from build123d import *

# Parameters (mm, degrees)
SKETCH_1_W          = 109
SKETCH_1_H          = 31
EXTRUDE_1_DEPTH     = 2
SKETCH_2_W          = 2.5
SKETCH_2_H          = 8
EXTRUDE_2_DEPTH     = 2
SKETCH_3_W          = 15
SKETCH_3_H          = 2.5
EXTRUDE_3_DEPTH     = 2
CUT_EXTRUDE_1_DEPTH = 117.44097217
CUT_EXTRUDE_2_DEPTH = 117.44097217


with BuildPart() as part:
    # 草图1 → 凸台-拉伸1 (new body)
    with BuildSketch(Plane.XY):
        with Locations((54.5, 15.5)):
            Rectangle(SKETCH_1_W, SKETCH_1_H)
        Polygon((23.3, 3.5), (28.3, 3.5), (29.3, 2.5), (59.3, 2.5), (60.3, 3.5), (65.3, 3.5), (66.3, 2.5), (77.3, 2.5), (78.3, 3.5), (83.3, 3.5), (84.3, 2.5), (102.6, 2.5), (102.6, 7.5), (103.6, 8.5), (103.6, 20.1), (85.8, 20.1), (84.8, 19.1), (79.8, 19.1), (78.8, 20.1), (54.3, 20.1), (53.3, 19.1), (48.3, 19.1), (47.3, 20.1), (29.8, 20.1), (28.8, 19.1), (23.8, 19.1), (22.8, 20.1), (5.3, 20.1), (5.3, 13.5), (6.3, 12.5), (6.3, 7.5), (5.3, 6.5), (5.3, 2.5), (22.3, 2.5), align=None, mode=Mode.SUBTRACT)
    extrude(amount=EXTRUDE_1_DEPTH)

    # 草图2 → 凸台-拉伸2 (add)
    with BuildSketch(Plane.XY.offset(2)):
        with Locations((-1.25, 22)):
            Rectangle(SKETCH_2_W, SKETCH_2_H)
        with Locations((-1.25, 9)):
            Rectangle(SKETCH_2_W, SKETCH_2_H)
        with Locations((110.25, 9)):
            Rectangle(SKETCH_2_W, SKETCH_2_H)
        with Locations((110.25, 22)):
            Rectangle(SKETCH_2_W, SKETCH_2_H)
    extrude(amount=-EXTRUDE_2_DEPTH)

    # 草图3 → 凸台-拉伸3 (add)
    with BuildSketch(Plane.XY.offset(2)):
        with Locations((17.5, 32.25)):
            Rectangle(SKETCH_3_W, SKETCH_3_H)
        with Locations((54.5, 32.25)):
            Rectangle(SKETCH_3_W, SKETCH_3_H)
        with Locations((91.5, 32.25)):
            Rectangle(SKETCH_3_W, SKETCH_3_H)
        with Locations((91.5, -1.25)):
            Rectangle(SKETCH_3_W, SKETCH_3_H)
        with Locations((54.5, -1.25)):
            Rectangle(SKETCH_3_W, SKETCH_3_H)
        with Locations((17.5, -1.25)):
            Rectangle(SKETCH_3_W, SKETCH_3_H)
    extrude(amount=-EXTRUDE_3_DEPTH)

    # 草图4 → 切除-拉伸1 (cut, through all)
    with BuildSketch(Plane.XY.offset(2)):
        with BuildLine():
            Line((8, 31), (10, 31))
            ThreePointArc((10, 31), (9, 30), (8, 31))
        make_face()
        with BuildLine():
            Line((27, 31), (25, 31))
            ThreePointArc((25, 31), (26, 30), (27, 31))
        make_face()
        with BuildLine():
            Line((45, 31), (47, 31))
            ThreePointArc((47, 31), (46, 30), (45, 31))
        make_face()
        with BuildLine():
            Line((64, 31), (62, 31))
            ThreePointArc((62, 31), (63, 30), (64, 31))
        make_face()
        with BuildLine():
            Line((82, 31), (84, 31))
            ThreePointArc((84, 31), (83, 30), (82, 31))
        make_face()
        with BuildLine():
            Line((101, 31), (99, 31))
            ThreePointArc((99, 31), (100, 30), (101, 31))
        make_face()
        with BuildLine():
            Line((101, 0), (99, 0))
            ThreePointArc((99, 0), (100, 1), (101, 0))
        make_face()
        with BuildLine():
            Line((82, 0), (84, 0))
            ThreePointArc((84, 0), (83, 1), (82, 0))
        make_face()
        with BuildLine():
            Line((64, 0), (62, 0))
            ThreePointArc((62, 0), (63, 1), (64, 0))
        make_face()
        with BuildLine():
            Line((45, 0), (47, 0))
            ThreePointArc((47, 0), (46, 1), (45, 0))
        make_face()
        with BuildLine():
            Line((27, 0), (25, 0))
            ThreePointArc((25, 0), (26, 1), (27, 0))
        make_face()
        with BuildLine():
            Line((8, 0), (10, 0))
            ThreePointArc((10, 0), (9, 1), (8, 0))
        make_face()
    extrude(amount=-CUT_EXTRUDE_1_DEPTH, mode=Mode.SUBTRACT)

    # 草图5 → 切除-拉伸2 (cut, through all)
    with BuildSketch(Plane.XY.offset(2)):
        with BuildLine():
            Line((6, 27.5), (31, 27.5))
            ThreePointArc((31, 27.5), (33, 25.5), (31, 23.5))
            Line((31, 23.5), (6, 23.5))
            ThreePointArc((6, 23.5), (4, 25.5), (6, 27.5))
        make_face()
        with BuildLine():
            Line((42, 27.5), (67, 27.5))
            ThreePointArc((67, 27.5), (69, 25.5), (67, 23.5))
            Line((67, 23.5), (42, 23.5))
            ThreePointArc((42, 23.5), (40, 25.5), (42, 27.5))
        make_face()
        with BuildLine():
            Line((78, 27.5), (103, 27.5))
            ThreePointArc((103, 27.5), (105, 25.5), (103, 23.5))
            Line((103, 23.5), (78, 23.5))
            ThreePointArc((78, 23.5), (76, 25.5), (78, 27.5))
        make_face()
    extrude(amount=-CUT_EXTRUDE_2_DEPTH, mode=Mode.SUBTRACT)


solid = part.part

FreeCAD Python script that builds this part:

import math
import FreeCAD as App
import Part
import Sketcher

V = App.Vector
Q = App.Units.Quantity

doc = App.newDocument("Part")
body = doc.addObject("PartDesign::Body", "Body")

# Sketch on XY plane
sketch1 = body.newObject("Sketcher::SketchObject", "Sketch")
sketch1.AttachmentSupport = (doc.getObject("XY_Plane"), [""])
sketch1.MapMode = "FlatFace"
sketch1.addGeometry(Part.LineSegment(V(0, 31, 0), V(0, 0, 0)), False)
sketch1.addGeometry(Part.LineSegment(V(0, 0, 0), V(109, 0, 0)), False)
sketch1.addGeometry(Part.LineSegment(V(109, 0, 0), V(109, 31, 0)), False)
sketch1.addGeometry(Part.LineSegment(V(109, 31, 0), V(0, 31, 0)), False)
sketch1.addGeometry(Part.LineSegment(V(28.3, 3.5, 0), V(23.3, 3.5, 0)), False)
sketch1.addGeometry(Part.LineSegment(V(23.3, 3.5, 0), V(22.3, 2.5, 0)), False)
sketch1.addGeometry(Part.LineSegment(V(22.3, 2.5, 0), V(5.3, 2.5, 0)), False)
sketch1.addGeometry(Part.LineSegment(V(5.3, 2.5, 0), V(5.3, 6.5, 0)), False)
sketch1.addGeometry(Part.LineSegment(V(5.3, 6.5, 0), V(6.3, 7.5, 0)), False)
sketch1.addGeometry(Part.LineSegment(V(6.3, 7.5, 0), V(6.3, 12.5, 0)), False)
sketch1.addGeometry(Part.LineSegment(V(6.3, 12.5, 0), V(5.3, 13.5, 0)), False)
sketch1.addGeometry(Part.LineSegment(V(5.3, 13.5, 0), V(5.3, 20.1, 0)), False)
sketch1.addGeometry(Part.LineSegment(V(5.3, 20.1, 0), V(22.8, 20.1, 0)), False)
sketch1.addGeometry(Part.LineSegment(V(22.8, 20.1, 0), V(23.8, 19.1, 0)), False)
sketch1.addGeometry(Part.LineSegment(V(23.8, 19.1, 0), V(28.8, 19.1, 0)), False)
sketch1.addGeometry(Part.LineSegment(V(28.8, 19.1, 0), V(29.8, 20.1, 0)), False)
sketch1.addGeometry(Part.LineSegment(V(29.8, 20.1, 0), V(47.3, 20.1, 0)), False)
sketch1.addGeometry(Part.LineSegment(V(47.3, 20.1, 0), V(48.3, 19.1, 0)), False)
sketch1.addGeometry(Part.LineSegment(V(48.3, 19.1, 0), V(53.3, 19.1, 0)), False)
sketch1.addGeometry(Part.LineSegment(V(53.3, 19.1, 0), V(54.3, 20.1, 0)), False)
sketch1.addGeometry(Part.LineSegment(V(54.3, 20.1, 0), V(78.8, 20.1, 0)), False)
sketch1.addGeometry(Part.LineSegment(V(78.8, 20.1, 0), V(79.8, 19.1, 0)), False)
sketch1.addGeometry(Part.LineSegment(V(79.8, 19.1, 0), V(84.8, 19.1, 0)), False)
sketch1.addGeometry(Part.LineSegment(V(84.8, 19.1, 0), V(85.8, 20.1, 0)), False)
sketch1.addGeometry(Part.LineSegment(V(85.8, 20.1, 0), V(103.6, 20.1, 0)), False)
sketch1.addGeometry(Part.LineSegment(V(103.6, 20.1, 0), V(103.6, 8.5, 0)), False)
sketch1.addGeometry(Part.LineSegment(V(103.6, 8.5, 0), V(102.6, 7.5, 0)), False)
sketch1.addGeometry(Part.LineSegment(V(102.6, 7.5, 0), V(102.6, 2.5, 0)), False)
sketch1.addGeometry(Part.LineSegment(V(102.6, 2.5, 0), V(84.3, 2.5, 0)), False)
sketch1.addGeometry(Part.LineSegment(V(84.3, 2.5, 0), V(83.3, 3.5, 0)), False)
sketch1.addGeometry(Part.LineSegment(V(83.3, 3.5, 0), V(78.3, 3.5, 0)), False)
sketch1.addGeometry(Part.LineSegment(V(78.3, 3.5, 0), V(77.3, 2.5, 0)), False)
sketch1.addGeometry(Part.LineSegment(V(77.3, 2.5, 0), V(66.3, 2.5, 0)), False)
sketch1.addGeometry(Part.LineSegment(V(66.3, 2.5, 0), V(65.3, 3.5, 0)), False)
sketch1.addGeometry(Part.LineSegment(V(65.3, 3.5, 0), V(60.3, 3.5, 0)), False)
sketch1.addGeometry(Part.LineSegment(V(60.3, 3.5, 0), V(59.3, 2.5, 0)), False)
sketch1.addGeometry(Part.LineSegment(V(59.3, 2.5, 0), V(29.3, 2.5, 0)), False)
sketch1.addGeometry(Part.LineSegment(V(29.3, 2.5, 0), V(28.3, 3.5, 0)), False)
sketch1.addConstraint(Sketcher.Constraint("Coincident", 0, 2, 1, 1))
sketch1.addConstraint(Sketcher.Constraint("Coincident", 1, 2, 2, 1))
sketch1.addConstraint(Sketcher.Constraint("Coincident", 2, 2, 3, 1))
sketch1.addConstraint(Sketcher.Constraint("Coincident", 3, 2, 0, 1))
sketch1.addConstraint(Sketcher.Constraint("Coincident", 4, 2, 5, 1))
sketch1.addConstraint(Sketcher.Constraint("Coincident", 5, 2, 6, 1))
sketch1.addConstraint(Sketcher.Constraint("Coincident", 6, 2, 7, 1))
sketch1.addConstraint(Sketcher.Constraint("Coincident", 7, 2, 8, 1))
sketch1.addConstraint(Sketcher.Constraint("Coincident", 8, 2, 9, 1))
sketch1.addConstraint(Sketcher.Constraint("Coincident", 9, 2, 10, 1))
sketch1.addConstraint(Sketcher.Constraint("Coincident", 10, 2, 11, 1))
sketch1.addConstraint(Sketcher.Constraint("Coincident", 11, 2, 12, 1))
sketch1.addConstraint(Sketcher.Constraint("Coincident", 12, 2, 13, 1))
sketch1.addConstraint(Sketcher.Constraint("Coincident", 13, 2, 14, 1))
sketch1.addConstraint(Sketcher.Constraint("Coincident", 14, 2, 15, 1))
sketch1.addConstraint(Sketcher.Constraint("Coincident", 15, 2, 16, 1))
sketch1.addConstraint(Sketcher.Constraint("Coincident", 16, 2, 17, 1))
sketch1.addConstraint(Sketcher.Constraint("Coincident", 17, 2, 18, 1))
sketch1.addConstraint(Sketcher.Constraint("Coincident", 18, 2, 19, 1))
sketch1.addConstraint(Sketcher.Constraint("Coincident", 19, 2, 20, 1))
sketch1.addConstraint(Sketcher.Constraint("Coincident", 20, 2, 21, 1))
sketch1.addConstraint(Sketcher.Constraint("Coincident", 21, 2, 22, 1))
sketch1.addConstraint(Sketcher.Constraint("Coincident", 22, 2, 23, 1))
sketch1.addConstraint(Sketcher.Constraint("Coincident", 23, 2, 24, 1))
sketch1.addConstraint(Sketcher.Constraint("Coincident", 24, 2, 25, 1))
sketch1.addConstraint(Sketcher.Constraint("Coincident", 25, 2, 26, 1))
sketch1.addConstraint(Sketcher.Constraint("Coincident", 26, 2, 27, 1))
sketch1.addConstraint(Sketcher.Constraint("Coincident", 27, 2, 28, 1))
sketch1.addConstraint(Sketcher.Constraint("Coincident", 28, 2, 29, 1))
sketch1.addConstraint(Sketcher.Constraint("Coincident", 29, 2, 30, 1))
sketch1.addConstraint(Sketcher.Constraint("Coincident", 30, 2, 31, 1))
sketch1.addConstraint(Sketcher.Constraint("Coincident", 31, 2, 32, 1))
sketch1.addConstraint(Sketcher.Constraint("Coincident", 32, 2, 33, 1))
sketch1.addConstraint(Sketcher.Constraint("Coincident", 33, 2, 34, 1))
sketch1.addConstraint(Sketcher.Constraint("Coincident", 34, 2, 35, 1))
sketch1.addConstraint(Sketcher.Constraint("Coincident", 35, 2, 36, 1))
sketch1.addConstraint(Sketcher.Constraint("Coincident", 36, 2, 37, 1))
sketch1.addConstraint(Sketcher.Constraint("Coincident", 37, 2, 4, 1))
sketch1.addConstraint(Sketcher.Constraint("Vertical", 0))
sketch1.addConstraint(Sketcher.Constraint("Horizontal", 1))
sketch1.addConstraint(Sketcher.Constraint("Vertical", 2))
sketch1.addConstraint(Sketcher.Constraint("Horizontal", 3))
sketch1.addConstraint(Sketcher.Constraint("Horizontal", 4))
sketch1.addConstraint(Sketcher.Constraint("Horizontal", 6))
sketch1.addConstraint(Sketcher.Constraint("Vertical", 7))
sketch1.addConstraint(Sketcher.Constraint("Vertical", 9))
sketch1.addConstraint(Sketcher.Constraint("Vertical", 11))
sketch1.addConstraint(Sketcher.Constraint("Horizontal", 12))
sketch1.addConstraint(Sketcher.Constraint("Horizontal", 14))
sketch1.addConstraint(Sketcher.Constraint("Horizontal", 16))
sketch1.addConstraint(Sketcher.Constraint("Horizontal", 18))
sketch1.addConstraint(Sketcher.Constraint("Horizontal", 20))
sketch1.addConstraint(Sketcher.Constraint("Horizontal", 22))
sketch1.addConstraint(Sketcher.Constraint("Horizontal", 24))
sketch1.addConstraint(Sketcher.Constraint("Vertical", 25))
sketch1.addConstraint(Sketcher.Constraint("Vertical", 27))
sketch1.addConstraint(Sketcher.Constraint("Horizontal", 28))
sketch1.addConstraint(Sketcher.Constraint("Horizontal", 30))
sketch1.addConstraint(Sketcher.Constraint("Horizontal", 32))
sketch1.addConstraint(Sketcher.Constraint("Horizontal", 34))
sketch1.addConstraint(Sketcher.Constraint("Horizontal", 36))
sketch1.addConstraint(Sketcher.Constraint("Coincident", 0, 2, -1, 1))
sketch1.addConstraint(Sketcher.Constraint("Parallel", 5, 8))
sketch1.addConstraint(Sketcher.Constraint("Perpendicular", 8, 10))
sketch1.addConstraint(Sketcher.Constraint("Parallel", 10, 13))
sketch1.addConstraint(Sketcher.Constraint("Perpendicular", 13, 15))
sketch1.addConstraint(Sketcher.Constraint("Perpendicular", 15, 17))
sketch1.addConstraint(Sketcher.Constraint("Perpendicular", 17, 19))
sketch1.addConstraint(Sketcher.Constraint("Perpendicular", 19, 21))
sketch1.addConstraint(Sketcher.Constraint("Perpendicular", 21, 23))
sketch1.addConstraint(Sketcher.Constraint("Parallel", 23, 26))
sketch1.addConstraint(Sketcher.Constraint("Perpendicular", 26, 29))
sketch1.addConstraint(Sketcher.Constraint("Perpendicular", 29, 31))
sketch1.addConstraint(Sketcher.Constraint("Perpendicular", 31, 33))
sketch1.addConstraint(Sketcher.Constraint("Perpendicular", 33, 35))
sketch1.addConstraint(Sketcher.Constraint("Perpendicular", 35, 37))
sketch1.addConstraint(Sketcher.Constraint("Horizontal", 12, 2, 15, 2))
sketch1.addConstraint(Sketcher.Constraint("Horizontal", 14, 2, 17, 2))
sketch1.addConstraint(Sketcher.Constraint("Horizontal", 16, 2, 19, 2))
sketch1.addConstraint(Sketcher.Constraint("Horizontal", 18, 2, 21, 2))
sketch1.addConstraint(Sketcher.Constraint("Horizontal", 20, 2, 23, 2))
sketch1.addConstraint(Sketcher.Constraint("Horizontal", 8, 2, 26, 2))
sketch1.addConstraint(Sketcher.Constraint("Horizontal", 6, 2, 27, 2))
sketch1.addConstraint(Sketcher.Constraint("Horizontal", 4, 2, 29, 2))
sketch1.addConstraint(Sketcher.Constraint("Horizontal", 28, 2, 31, 2))
sketch1.addConstraint(Sketcher.Constraint("Horizontal", 30, 2, 33, 2))
sketch1.addConstraint(Sketcher.Constraint("Horizontal", 32, 2, 35, 2))
sketch1.addConstraint(Sketcher.Constraint("Vertical", 7, 2, 10, 2))
sketch1.addConstraint(Sketcher.Constraint("Equal", 4, 14))
sketch1.addConstraint(Sketcher.Constraint("Equal", 12, 16))
sketch1.addConstraint(Sketcher.Constraint("Equal", 14, 18))
sketch1.addConstraint(Sketcher.Constraint("Equal", 18, 22))
sketch1.addConstraint(Sketcher.Constraint("Equal", 22, 30))
sketch1.addConstraint(Sketcher.Constraint("Equal", 30, 34))
sketch1.addConstraint(Sketcher.Constraint("Equal", 34, 9))
sketch1.addConstraint(Sketcher.Constraint("Equal", 9, 27))
sketch1.addConstraint(Sketcher.Constraint("Equal", 5, 8))
sketch1.addConstraint(Sketcher.Constraint("Equal", 8, 10))
sketch1.addConstraint(Sketcher.Constraint("Equal", 10, 13))
sketch1.addConstraint(Sketcher.Constraint("Equal", 23, 26))
sketch1.addConstraint(Sketcher.Constraint("DistanceX", 1, 1, 1, 2, Q("109 mm")))
sketch1.addConstraint(Sketcher.Constraint("DistanceX", 4, 2, 4, 1, Q("5 mm")))
sketch1.addConstraint(Sketcher.Constraint("DistanceX", 6, 2, 6, 1, Q("17 mm")))
sketch1.addConstraint(Sketcher.Constraint("DistanceX", 32, 2, 32, 1, Q("11 mm")))
sketch1.addConstraint(Sketcher.Constraint("DistanceX", 36, 2, 36, 1, Q("30 mm")))
sketch1.addConstraint(Sketcher.Constraint("DistanceY", 0, 2, 0, 1, Q("31 mm")))
sketch1.addConstraint(Sketcher.Constraint("DistanceY", 7, 1, 7, 2, Q("4 mm")))
sketch1.addConstraint(Sketcher.Constraint("DistanceX", 12, 1, 12, 2, Q("17.5 mm")))
sketch1.addConstraint(Sketcher.Constraint("DistanceX", 20, 1, 20, 2, Q("24.5 mm")))
sketch1.addConstraint(Sketcher.Constraint("DistanceX", 24, 1, 24, 2, Q("17.8 mm")))
sketch1.addConstraint(Sketcher.Constraint("DistanceY", 11, 1, 11, 2, Q("6.6 mm")))
sketch1.addConstraint(Sketcher.Constraint("DistanceX", -1, 1, 4, 2, Q("23.3 mm")))
sketch1.addConstraint(Sketcher.Constraint("DistanceY", -1, 1, 4, 2, Q("3.5 mm")))
pad1 = body.newObject("PartDesign::Pad", "Pad")
pad1.Profile = sketch1
pad1.Length = 2

# Sketch on XY plane
sketch2 = body.newObject("Sketcher::SketchObject", "Sketch001")
sketch2.AttachmentSupport = (doc.getObject("XY_Plane"), [""])
sketch2.MapMode = "FlatFace"
sketch2.AttachmentOffset = App.Placement(V(0, 0, 2), App.Rotation())
sketch2.addGeometry(Part.LineSegment(V(-2.5, 26, 0), V(-2.5, 18, 0)), False)
sketch2.addGeometry(Part.LineSegment(V(-2.5, 18, 0), V(0, 18, 0)), False)
sketch2.addGeometry(Part.LineSegment(V(0, 18, 0), V(0, 26, 0)), False)
sketch2.addGeometry(Part.LineSegment(V(0, 26, 0), V(-2.5, 26, 0)), False)
sketch2.addGeometry(Part.LineSegment(V(-2.5, 13, 0), V(-2.5, 5, 0)), False)
sketch2.addGeometry(Part.LineSegment(V(-2.5, 5, 0), V(0, 5, 0)), False)
sketch2.addGeometry(Part.LineSegment(V(0, 5, 0), V(0, 13, 0)), False)
sketch2.addGeometry(Part.LineSegment(V(0, 13, 0), V(-2.5, 13, 0)), False)
sketch2.addGeometry(Part.LineSegment(V(109, 13, 0), V(109, 5, 0)), False)
sketch2.addGeometry(Part.LineSegment(V(109, 5, 0), V(111.5, 5, 0)), False)
sketch2.addGeometry(Part.LineSegment(V(111.5, 5, 0), V(111.5, 13, 0)), False)
sketch2.addGeometry(Part.LineSegment(V(111.5, 13, 0), V(109, 13, 0)), False)
sketch2.addGeometry(Part.LineSegment(V(109, 26, 0), V(109, 18, 0)), False)
sketch2.addGeometry(Part.LineSegment(V(109, 18, 0), V(111.5, 18, 0)), False)
sketch2.addGeometry(Part.LineSegment(V(111.5, 18, 0), V(111.5, 26, 0)), False)
sketch2.addGeometry(Part.LineSegment(V(111.5, 26, 0), V(109, 26, 0)), False)
sketch2.addConstraint(Sketcher.Constraint("Coincident", 0, 2, 1, 1))
sketch2.addConstraint(Sketcher.Constraint("Coincident", 1, 2, 2, 1))
sketch2.addConstraint(Sketcher.Constraint("Coincident", 2, 2, 3, 1))
sketch2.addConstraint(Sketcher.Constraint("Coincident", 3, 2, 0, 1))
sketch2.addConstraint(Sketcher.Constraint("Coincident", 4, 2, 5, 1))
sketch2.addConstraint(Sketcher.Constraint("Coincident", 5, 2, 6, 1))
sketch2.addConstraint(Sketcher.Constraint("Coincident", 6, 2, 7, 1))
sketch2.addConstraint(Sketcher.Constraint("Coincident", 7, 2, 4, 1))
sketch2.addConstraint(Sketcher.Constraint("Coincident", 8, 2, 9, 1))
sketch2.addConstraint(Sketcher.Constraint("Coincident", 9, 2, 10, 1))
sketch2.addConstraint(Sketcher.Constraint("Coincident", 10, 2, 11, 1))
sketch2.addConstraint(Sketcher.Constraint("Coincident", 11, 2, 8, 1))
sketch2.addConstraint(Sketcher.Constraint("Coincident", 12, 2, 13, 1))
sketch2.addConstraint(Sketcher.Constraint("Coincident", 13, 2, 14, 1))
sketch2.addConstraint(Sketcher.Constraint("Coincident", 14, 2, 15, 1))
sketch2.addConstraint(Sketcher.Constraint("Coincident", 15, 2, 12, 1))
sketch2.addConstraint(Sketcher.Constraint("Vertical", 0))
sketch2.addConstraint(Sketcher.Constraint("Horizontal", 1))
sketch2.addConstraint(Sketcher.Constraint("Vertical", 2))
sketch2.addConstraint(Sketcher.Constraint("Horizontal", 3))
sketch2.addConstraint(Sketcher.Constraint("Vertical", 4))
sketch2.addConstraint(Sketcher.Constraint("Horizontal", 5))
sketch2.addConstraint(Sketcher.Constraint("Vertical", 6))
sketch2.addConstraint(Sketcher.Constraint("Horizontal", 7))
sketch2.addConstraint(Sketcher.Constraint("Vertical", 8))
sketch2.addConstraint(Sketcher.Constraint("Horizontal", 9))
sketch2.addConstraint(Sketcher.Constraint("Vertical", 10))
sketch2.addConstraint(Sketcher.Constraint("Horizontal", 11))
sketch2.addConstraint(Sketcher.Constraint("Vertical", 12))
sketch2.addConstraint(Sketcher.Constraint("Horizontal", 13))
sketch2.addConstraint(Sketcher.Constraint("Vertical", 14))
sketch2.addConstraint(Sketcher.Constraint("Horizontal", 15))
sketch2.addConstraint(Sketcher.Constraint("PointOnObject", 1, 2, -2))
sketch2.addConstraint(Sketcher.Constraint("PointOnObject", 5, 2, -2))
sketch2.addConstraint(Sketcher.Constraint("Horizontal", 5, 2, 8, 2))
sketch2.addConstraint(Sketcher.Constraint("Horizontal", 7, 2, 10, 2))
sketch2.addConstraint(Sketcher.Constraint("Horizontal", 1, 2, 12, 2))
sketch2.addConstraint(Sketcher.Constraint("Horizontal", 3, 2, 14, 2))
sketch2.addConstraint(Sketcher.Constraint("Vertical", 3, 2, 4, 2))
sketch2.addConstraint(Sketcher.Constraint("Vertical", 11, 2, 12, 2))
sketch2.addConstraint(Sketcher.Constraint("Vertical", 10, 2, 13, 2))
sketch2.addConstraint(Sketcher.Constraint("Equal", 7, 9))
sketch2.addConstraint(Sketcher.Constraint("Equal", 2, 4))
sketch2.addConstraint(Sketcher.Constraint("DistanceY", 0, 2, 0, 1, Q("8 mm")))
sketch2.addConstraint(Sketcher.Constraint("DistanceX", 1, 1, 1, 2, Q("2.5 mm")))
sketch2.addConstraint(Sketcher.Constraint("DistanceY", -1, 1, 0, 2, Q("18 mm")))
sketch2.addConstraint(Sketcher.Constraint("DistanceY", -1, 1, 4, 2, Q("5 mm")))
sketch2.addConstraint(Sketcher.Constraint("DistanceX", -1, 1, 8, 2, Q("109 mm")))
pad2 = body.newObject("PartDesign::Pad", "Pad001")
pad2.Profile = sketch2
pad2.Length = 2
pad2.Reversed = True

# Sketch on XY plane
sketch3 = body.newObject("Sketcher::SketchObject", "Sketch002")
sketch3.AttachmentSupport = (doc.getObject("XY_Plane"), [""])
sketch3.MapMode = "FlatFace"
sketch3.AttachmentOffset = App.Placement(V(0, 0, 2), App.Rotation())
sketch3.addGeometry(Part.LineSegment(V(10, 33.5, 0), V(10, 31, 0)), False)
sketch3.addGeometry(Part.LineSegment(V(10, 31, 0), V(25, 31, 0)), False)
sketch3.addGeometry(Part.LineSegment(V(25, 31, 0), V(25, 33.5, 0)), False)
sketch3.addGeometry(Part.LineSegment(V(25, 33.5, 0), V(10, 33.5, 0)), False)
sketch3.addGeometry(Part.LineSegment(V(47, 33.5, 0), V(47, 31, 0)), False)
sketch3.addGeometry(Part.LineSegment(V(47, 31, 0), V(62, 31, 0)), False)
sketch3.addGeometry(Part.LineSegment(V(62, 31, 0), V(62, 33.5, 0)), False)
sketch3.addGeometry(Part.LineSegment(V(62, 33.5, 0), V(47, 33.5, 0)), False)
sketch3.addGeometry(Part.LineSegment(V(84, 33.5, 0), V(84, 31, 0)), False)
sketch3.addGeometry(Part.LineSegment(V(84, 31, 0), V(99, 31, 0)), False)
sketch3.addGeometry(Part.LineSegment(V(99, 31, 0), V(99, 33.5, 0)), False)
sketch3.addGeometry(Part.LineSegment(V(99, 33.5, 0), V(84, 33.5, 0)), False)
sketch3.addGeometry(Part.LineSegment(V(84, 0, 0), V(84, -2.5, 0)), False)
sketch3.addGeometry(Part.LineSegment(V(84, -2.5, 0), V(99, -2.5, 0)), False)
sketch3.addGeometry(Part.LineSegment(V(99, -2.5, 0), V(99, 0, 0)), False)
sketch3.addGeometry(Part.LineSegment(V(99, 0, 0), V(84, 0, 0)), False)
sketch3.addGeometry(Part.LineSegment(V(47, 0, 0), V(47, -2.5, 0)), False)
sketch3.addGeometry(Part.LineSegment(V(47, -2.5, 0), V(62, -2.5, 0)), False)
sketch3.addGeometry(Part.LineSegment(V(62, -2.5, 0), V(62, 0, 0)), False)
sketch3.addGeometry(Part.LineSegment(V(62, 0, 0), V(47, 0, 0)), False)
sketch3.addGeometry(Part.LineSegment(V(10, 0, 0), V(10, -2.5, 0)), False)
sketch3.addGeometry(Part.LineSegment(V(10, -2.5, 0), V(25, -2.5, 0)), False)
sketch3.addGeometry(Part.LineSegment(V(25, -2.5, 0), V(25, 0, 0)), False)
sketch3.addGeometry(Part.LineSegment(V(25, 0, 0), V(10, 0, 0)), False)
sketch3.addConstraint(Sketcher.Constraint("Coincident", 0, 2, 1, 1))
sketch3.addConstraint(Sketcher.Constraint("Coincident", 1, 2, 2, 1))
sketch3.addConstraint(Sketcher.Constraint("Coincident", 2, 2, 3, 1))
sketch3.addConstraint(Sketcher.Constraint("Coincident", 3, 2, 0, 1))
sketch3.addConstraint(Sketcher.Constraint("Coincident", 4, 2, 5, 1))
sketch3.addConstraint(Sketcher.Constraint("Coincident", 5, 2, 6, 1))
sketch3.addConstraint(Sketcher.Constraint("Coincident", 6, 2, 7, 1))
sketch3.addConstraint(Sketcher.Constraint("Coincident", 7, 2, 4, 1))
sketch3.addConstraint(Sketcher.Constraint("Coincident", 8, 2, 9, 1))
sketch3.addConstraint(Sketcher.Constraint("Coincident", 9, 2, 10, 1))
sketch3.addConstraint(Sketcher.Constraint("Coincident", 10, 2, 11, 1))
sketch3.addConstraint(Sketcher.Constraint("Coincident", 11, 2, 8, 1))
sketch3.addConstraint(Sketcher.Constraint("Coincident", 12, 2, 13, 1))
sketch3.addConstraint(Sketcher.Constraint("Coincident", 13, 2, 14, 1))
sketch3.addConstraint(Sketcher.Constraint("Coincident", 14, 2, 15, 1))
sketch3.addConstraint(Sketcher.Constraint("Coincident", 15, 2, 12, 1))
sketch3.addConstraint(Sketcher.Constraint("Coincident", 16, 2, 17, 1))
sketch3.addConstraint(Sketcher.Constraint("Coincident", 17, 2, 18, 1))
sketch3.addConstraint(Sketcher.Constraint("Coincident", 18, 2, 19, 1))
sketch3.addConstraint(Sketcher.Constraint("Coincident", 19, 2, 16, 1))
sketch3.addConstraint(Sketcher.Constraint("Coincident", 20, 2, 21, 1))
sketch3.addConstraint(Sketcher.Constraint("Coincident", 21, 2, 22, 1))
sketch3.addConstraint(Sketcher.Constraint("Coincident", 22, 2, 23, 1))
sketch3.addConstraint(Sketcher.Constraint("Coincident", 23, 2, 20, 1))
sketch3.addConstraint(Sketcher.Constraint("Vertical", 0))
sketch3.addConstraint(Sketcher.Constraint("Horizontal", 1))
sketch3.addConstraint(Sketcher.Constraint("Vertical", 2))
sketch3.addConstraint(Sketcher.Constraint("Horizontal", 3))
sketch3.addConstraint(Sketcher.Constraint("Vertical", 4))
sketch3.addConstraint(Sketcher.Constraint("Horizontal", 5))
sketch3.addConstraint(Sketcher.Constraint("Vertical", 6))
sketch3.addConstraint(Sketcher.Constraint("Horizontal", 7))
sketch3.addConstraint(Sketcher.Constraint("Vertical", 8))
sketch3.addConstraint(Sketcher.Constraint("Horizontal", 9))
sketch3.addConstraint(Sketcher.Constraint("Vertical", 10))
sketch3.addConstraint(Sketcher.Constraint("Horizontal", 11))
sketch3.addConstraint(Sketcher.Constraint("Vertical", 12))
sketch3.addConstraint(Sketcher.Constraint("Horizontal", 13))
sketch3.addConstraint(Sketcher.Constraint("Vertical", 14))
sketch3.addConstraint(Sketcher.Constraint("Horizontal", 15))
sketch3.addConstraint(Sketcher.Constraint("Vertical", 16))
sketch3.addConstraint(Sketcher.Constraint("Horizontal", 17))
sketch3.addConstraint(Sketcher.Constraint("Vertical", 18))
sketch3.addConstraint(Sketcher.Constraint("Horizontal", 19))
sketch3.addConstraint(Sketcher.Constraint("Vertical", 20))
sketch3.addConstraint(Sketcher.Constraint("Horizontal", 21))
sketch3.addConstraint(Sketcher.Constraint("Vertical", 22))
sketch3.addConstraint(Sketcher.Constraint("Horizontal", 23))
sketch3.addConstraint(Sketcher.Constraint("PointOnObject", 14, 2, -1))
sketch3.addConstraint(Sketcher.Constraint("PointOnObject", 18, 2, -1))
sketch3.addConstraint(Sketcher.Constraint("PointOnObject", 22, 2, -1))
sketch3.addConstraint(Sketcher.Constraint("Horizontal", 1, 2, 4, 2))
sketch3.addConstraint(Sketcher.Constraint("Horizontal", 3, 2, 6, 2))
sketch3.addConstraint(Sketcher.Constraint("Horizontal", 5, 2, 8, 2))
sketch3.addConstraint(Sketcher.Constraint("Horizontal", 7, 2, 10, 2))
sketch3.addConstraint(Sketcher.Constraint("Horizontal", 13, 2, 16, 2))
sketch3.addConstraint(Sketcher.Constraint("Horizontal", 17, 2, 20, 2))
sketch3.addConstraint(Sketcher.Constraint("Vertical", 11, 2, 12, 2))
sketch3.addConstraint(Sketcher.Constraint("Vertical", 10, 2, 13, 2))
sketch3.addConstraint(Sketcher.Constraint("Vertical", 7, 2, 16, 2))
sketch3.addConstraint(Sketcher.Constraint("Vertical", 6, 2, 17, 2))
sketch3.addConstraint(Sketcher.Constraint("Vertical", 3, 2, 20, 2))
sketch3.addConstraint(Sketcher.Constraint("Vertical", 2, 2, 21, 2))
sketch3.addConstraint(Sketcher.Constraint("Equal", 3, 5))
sketch3.addConstraint(Sketcher.Constraint("Equal", 7, 9))
sketch3.addConstraint(Sketcher.Constraint("Equal", 10, 12))
sketch3.addConstraint(Sketcher.Constraint("DistanceX", 1, 1, 1, 2, Q("15 mm")))
sketch3.addConstraint(Sketcher.Constraint("DistanceY", 0, 2, 0, 1, Q("2.5 mm")))
sketch3.addConstraint(Sketcher.Constraint("DistanceX", -1, 1, 0, 2, Q("10 mm")))
sketch3.addConstraint(Sketcher.Constraint("DistanceY", -1, 1, 0, 2, Q("31 mm")))
sketch3.addConstraint(Sketcher.Constraint("DistanceX", -1, 1, 4, 2, Q("47 mm")))
sketch3.addConstraint(Sketcher.Constraint("DistanceX", -1, 1, 8, 2, Q("84 mm")))
pad3 = body.newObject("PartDesign::Pad", "Pad002")
pad3.Profile = sketch3
pad3.Length = 2
pad3.Reversed = True

# Sketch on XY plane
sketch4 = body.newObject("Sketcher::SketchObject", "Sketch003")
sketch4.AttachmentSupport = (doc.getObject("XY_Plane"), [""])
sketch4.MapMode = "FlatFace"
sketch4.AttachmentOffset = App.Placement(V(0, 0, 2), App.Rotation())
sketch4.addGeometry(Part.LineSegment(V(10, 31, 0), V(8, 31, 0)), False)
sketch4.addGeometry(Part.ArcOfCircle(Part.Circle(V(9, 31, 0), V(0, 0, 1), 1), math.radians(180), math.radians(360)), False)
sketch4.addGeometry(Part.LineSegment(V(27, 31, 0), V(25, 31, 0)), False)
sketch4.addGeometry(Part.ArcOfCircle(Part.Circle(V(26, 31, 0), V(0, 0, 1), 1), math.radians(180), math.radians(360)), False)
sketch4.addGeometry(Part.LineSegment(V(47, 31, 0), V(45, 31, 0)), False)
sketch4.addGeometry(Part.ArcOfCircle(Part.Circle(V(46, 31, 0), V(0, 0, 1), 1), math.radians(180), math.radians(360)), False)
sketch4.addGeometry(Part.LineSegment(V(64, 31, 0), V(62, 31, 0)), False)
sketch4.addGeometry(Part.ArcOfCircle(Part.Circle(V(63, 31, 0), V(0, 0, 1), 1), math.radians(180), math.radians(360)), False)
sketch4.addGeometry(Part.LineSegment(V(84, 31, 0), V(82, 31, 0)), False)
sketch4.addGeometry(Part.ArcOfCircle(Part.Circle(V(83, 31, 0), V(0, 0, 1), 1), math.radians(180), math.radians(360)), False)
sketch4.addGeometry(Part.LineSegment(V(101, 31, 0), V(99, 31, 0)), False)
sketch4.addGeometry(Part.ArcOfCircle(Part.Circle(V(100, 31, 0), V(0, 0, 1), 1), math.radians(180), math.radians(360)), False)
sketch4.addGeometry(Part.LineSegment(V(99, 0, 0), V(101, 0, 0)), False)
sketch4.addGeometry(Part.ArcOfCircle(Part.Circle(V(100, 0, 0), V(0, 0, 1), 1), math.radians(0), math.radians(180)), False)
sketch4.addGeometry(Part.LineSegment(V(82, 0, 0), V(84, 0, 0)), False)
sketch4.addGeometry(Part.ArcOfCircle(Part.Circle(V(83, 0, 0), V(0, 0, 1), 1), math.radians(0), math.radians(180)), False)
sketch4.addGeometry(Part.LineSegment(V(62, 0, 0), V(64, 0, 0)), False)
sketch4.addGeometry(Part.ArcOfCircle(Part.Circle(V(63, 0, 0), V(0, 0, 1), 1), math.radians(0), math.radians(180)), False)
sketch4.addGeometry(Part.LineSegment(V(45, 0, 0), V(47, 0, 0)), False)
sketch4.addGeometry(Part.ArcOfCircle(Part.Circle(V(46, 0, 0), V(0, 0, 1), 1), math.radians(0), math.radians(180)), False)
sketch4.addGeometry(Part.LineSegment(V(25, 0, 0), V(27, 0, 0)), False)
sketch4.addGeometry(Part.ArcOfCircle(Part.Circle(V(26, 0, 0), V(0, 0, 1), 1), math.radians(0), math.radians(180)), False)
sketch4.addGeometry(Part.LineSegment(V(8, 0, 0), V(10, 0, 0)), False)
sketch4.addGeometry(Part.ArcOfCircle(Part.Circle(V(9, 0, 0), V(0, 0, 1), 1), math.radians(0), math.radians(180)), False)
sketch4.addConstraint(Sketcher.Constraint("Coincident", 0, 1, 1, 2))
sketch4.addConstraint(Sketcher.Constraint("Coincident", 1, 1, 0, 2))
sketch4.addConstraint(Sketcher.Constraint("Coincident", 2, 1, 3, 2))
sketch4.addConstraint(Sketcher.Constraint("Coincident", 3, 1, 2, 2))
sketch4.addConstraint(Sketcher.Constraint("Coincident", 4, 1, 5, 2))
sketch4.addConstraint(Sketcher.Constraint("Coincident", 5, 1, 4, 2))
sketch4.addConstraint(Sketcher.Constraint("Coincident", 6, 1, 7, 2))
sketch4.addConstraint(Sketcher.Constraint("Coincident", 7, 1, 6, 2))
sketch4.addConstraint(Sketcher.Constraint("Coincident", 8, 1, 9, 2))
sketch4.addConstraint(Sketcher.Constraint("Coincident", 9, 1, 8, 2))
sketch4.addConstraint(Sketcher.Constraint("Coincident", 10, 1, 11, 2))
sketch4.addConstraint(Sketcher.Constraint("Coincident", 11, 1, 10, 2))
sketch4.addConstraint(Sketcher.Constraint("Coincident", 12, 1, 13, 2))
sketch4.addConstraint(Sketcher.Constraint("Coincident", 13, 1, 12, 2))
sketch4.addConstraint(Sketcher.Constraint("Coincident", 14, 1, 15, 2))
sketch4.addConstraint(Sketcher.Constraint("Coincident", 15, 1, 14, 2))
sketch4.addConstraint(Sketcher.Constraint("Coincident", 16, 1, 17, 2))
sketch4.addConstraint(Sketcher.Constraint("Coincident", 17, 1, 16, 2))
sketch4.addConstraint(Sketcher.Constraint("Coincident", 18, 1, 19, 2))
sketch4.addConstraint(Sketcher.Constraint("Coincident", 19, 1, 18, 2))
sketch4.addConstraint(Sketcher.Constraint("Coincident", 20, 1, 21, 2))
sketch4.addConstraint(Sketcher.Constraint("Coincident", 21, 1, 20, 2))
sketch4.addConstraint(Sketcher.Constraint("Coincident", 22, 1, 23, 2))
sketch4.addConstraint(Sketcher.Constraint("Coincident", 23, 1, 22, 2))
sketch4.addConstraint(Sketcher.Constraint("Horizontal", 0))
sketch4.addConstraint(Sketcher.Constraint("Horizontal", 2))
sketch4.addConstraint(Sketcher.Constraint("Horizontal", 4))
sketch4.addConstraint(Sketcher.Constraint("Horizontal", 6))
sketch4.addConstraint(Sketcher.Constraint("Horizontal", 8))
sketch4.addConstraint(Sketcher.Constraint("Horizontal", 10))
sketch4.addConstraint(Sketcher.Constraint("Horizontal", 12))
sketch4.addConstraint(Sketcher.Constraint("Horizontal", 14))
sketch4.addConstraint(Sketcher.Constraint("Horizontal", 16))
sketch4.addConstraint(Sketcher.Constraint("Horizontal", 18))
sketch4.addConstraint(Sketcher.Constraint("Horizontal", 20))
sketch4.addConstraint(Sketcher.Constraint("Horizontal", 22))
sketch4.addConstraint(Sketcher.Constraint("Equal", 1, 3))
sketch4.addConstraint(Sketcher.Constraint("Equal", 3, 5))
sketch4.addConstraint(Sketcher.Constraint("Equal", 5, 7))
sketch4.addConstraint(Sketcher.Constraint("Equal", 7, 9))
sketch4.addConstraint(Sketcher.Constraint("Equal", 9, 11))
sketch4.addConstraint(Sketcher.Constraint("Equal", 11, 13))
sketch4.addConstraint(Sketcher.Constraint("Equal", 13, 15))
sketch4.addConstraint(Sketcher.Constraint("Equal", 15, 17))
sketch4.addConstraint(Sketcher.Constraint("Equal", 17, 19))
sketch4.addConstraint(Sketcher.Constraint("Equal", 19, 21))
sketch4.addConstraint(Sketcher.Constraint("Equal", 21, 23))
sketch4.addConstraint(Sketcher.Constraint("PointOnObject", 13, 3, -1))
sketch4.addConstraint(Sketcher.Constraint("PointOnObject", 15, 3, -1))
sketch4.addConstraint(Sketcher.Constraint("PointOnObject", 17, 3, -1))
sketch4.addConstraint(Sketcher.Constraint("PointOnObject", 19, 3, -1))
sketch4.addConstraint(Sketcher.Constraint("PointOnObject", 21, 3, -1))
sketch4.addConstraint(Sketcher.Constraint("PointOnObject", 23, 3, -1))
sketch4.addConstraint(Sketcher.Constraint("PointOnObject", 12, 1, -1))
sketch4.addConstraint(Sketcher.Constraint("PointOnObject", 14, 1, -1))
sketch4.addConstraint(Sketcher.Constraint("PointOnObject", 16, 1, -1))
sketch4.addConstraint(Sketcher.Constraint("PointOnObject", 18, 1, -1))
sketch4.addConstraint(Sketcher.Constraint("PointOnObject", 20, 1, -1))
sketch4.addConstraint(Sketcher.Constraint("PointOnObject", 22, 1, -1))
sketch4.addConstraint(Sketcher.Constraint("Horizontal", 1, 3, 3, 3))
sketch4.addConstraint(Sketcher.Constraint("Horizontal", 3, 3, 5, 3))
sketch4.addConstraint(Sketcher.Constraint("Horizontal", 5, 3, 7, 3))
sketch4.addConstraint(Sketcher.Constraint("Horizontal", 7, 3, 9, 3))
sketch4.addConstraint(Sketcher.Constraint("Horizontal", 9, 3, 11, 3))
sketch4.addConstraint(Sketcher.Constraint("Horizontal", 11, 3, 0, 1))
sketch4.addConstraint(Sketcher.Constraint("Horizontal", 1, 1, 2, 1))
sketch4.addConstraint(Sketcher.Constraint("Horizontal", 3, 1, 4, 1))
sketch4.addConstraint(Sketcher.Constraint("Horizontal", 5, 1, 6, 1))
sketch4.addConstraint(Sketcher.Constraint("Horizontal", 7, 1, 8, 1))
sketch4.addConstraint(Sketcher.Constraint("Horizontal", 9, 1, 10, 1))
sketch4.addConstraint(Sketcher.Constraint("Vertical", 11, 3, 13, 3))
sketch4.addConstraint(Sketcher.Constraint("Vertical", 9, 3, 15, 3))
sketch4.addConstraint(Sketcher.Constraint("Vertical", 7, 3, 17, 3))
sketch4.addConstraint(Sketcher.Constraint("Vertical", 5, 3, 19, 3))
sketch4.addConstraint(Sketcher.Constraint("Vertical", 3, 3, 21, 3))
sketch4.addConstraint(Sketcher.Constraint("Vertical", 1, 3, 23, 3))
sketch4.addConstraint(Sketcher.Constraint("Radius", 1, Q("1 mm")))
sketch4.addConstraint(Sketcher.Constraint("DistanceX", -1, 1, 1, 3, Q("9 mm")))
sketch4.addConstraint(Sketcher.Constraint("DistanceY", -1, 1, 1, 3, Q("31 mm")))
sketch4.addConstraint(Sketcher.Constraint("DistanceX", -1, 1, 3, 3, Q("26 mm")))
sketch4.addConstraint(Sketcher.Constraint("DistanceX", -1, 1, 5, 3, Q("46 mm")))
sketch4.addConstraint(Sketcher.Constraint("DistanceX", -1, 1, 7, 3, Q("63 mm")))
sketch4.addConstraint(Sketcher.Constraint("DistanceX", -1, 1, 9, 3, Q("83 mm")))
sketch4.addConstraint(Sketcher.Constraint("DistanceX", -1, 1, 11, 3, Q("100 mm")))
pocket1 = body.newObject("PartDesign::Pocket", "Pocket")
pocket1.Profile = sketch4
pocket1.Type = "ThroughAll"

# Sketch on XY plane
sketch5 = body.newObject("Sketcher::SketchObject", "Sketch004")
sketch5.AttachmentSupport = (doc.getObject("XY_Plane"), [""])
sketch5.MapMode = "FlatFace"
sketch5.AttachmentOffset = App.Placement(V(0, 0, 2), App.Rotation())
sketch5.addGeometry(Part.LineSegment(V(31, 27.5, 0), V(6, 27.5, 0)), False)
sketch5.addGeometry(Part.ArcOfCircle(Part.Circle(V(6, 25.5, 0), V(0, 0, 1), 2), math.radians(90), math.radians(270)), False)
sketch5.addGeometry(Part.LineSegment(V(6, 23.5, 0), V(31, 23.5, 0)), False)
sketch5.addGeometry(Part.ArcOfCircle(Part.Circle(V(31, 25.5, 0), V(0, 0, 1), 2), math.radians(-90), math.radians(90)), False)
sketch5.addGeometry(Part.LineSegment(V(67, 27.5, 0), V(42, 27.5, 0)), False)
sketch5.addGeometry(Part.ArcOfCircle(Part.Circle(V(42, 25.5, 0), V(0, 0, 1), 2), math.radians(90), math.radians(270)), False)
sketch5.addGeometry(Part.LineSegment(V(42, 23.5, 0), V(67, 23.5, 0)), False)
sketch5.addGeometry(Part.ArcOfCircle(Part.Circle(V(67, 25.5, 0), V(0, 0, 1), 2), math.radians(-90), math.radians(90)), False)
sketch5.addGeometry(Part.LineSegment(V(103, 27.5, 0), V(78, 27.5, 0)), False)
sketch5.addGeometry(Part.ArcOfCircle(Part.Circle(V(78, 25.5, 0), V(0, 0, 1), 2), math.radians(90), math.radians(270)), False)
sketch5.addGeometry(Part.LineSegment(V(78, 23.5, 0), V(103, 23.5, 0)), False)
sketch5.addGeometry(Part.ArcOfCircle(Part.Circle(V(103, 25.5, 0), V(0, 0, 1), 2), math.radians(-90), math.radians(90)), False)
sketch5.addConstraint(Sketcher.Constraint("Tangent", 0, 2, 1, 1))
sketch5.addConstraint(Sketcher.Constraint("Tangent", 1, 2, 2, 1))
sketch5.addConstraint(Sketcher.Constraint("Tangent", 2, 2, 3, 1))
sketch5.addConstraint(Sketcher.Constraint("Tangent", 3, 2, 0, 1))
sketch5.addConstraint(Sketcher.Constraint("Tangent", 4, 2, 5, 1))
sketch5.addConstraint(Sketcher.Constraint("Tangent", 5, 2, 6, 1))
sketch5.addConstraint(Sketcher.Constraint("Tangent", 6, 2, 7, 1))
sketch5.addConstraint(Sketcher.Constraint("Tangent", 7, 2, 4, 1))
sketch5.addConstraint(Sketcher.Constraint("Tangent", 8, 2, 9, 1))
sketch5.addConstraint(Sketcher.Constraint("Tangent", 9, 2, 10, 1))
sketch5.addConstraint(Sketcher.Constraint("Tangent", 10, 2, 11, 1))
sketch5.addConstraint(Sketcher.Constraint("Tangent", 11, 2, 8, 1))
sketch5.addConstraint(Sketcher.Constraint("Horizontal", 0))
sketch5.addConstraint(Sketcher.Constraint("Horizontal", 2))
sketch5.addConstraint(Sketcher.Constraint("Horizontal", 4))
sketch5.addConstraint(Sketcher.Constraint("Horizontal", 6))
sketch5.addConstraint(Sketcher.Constraint("Horizontal", 8))
sketch5.addConstraint(Sketcher.Constraint("Horizontal", 10))
sketch5.addConstraint(Sketcher.Constraint("Equal", 3, 5))
sketch5.addConstraint(Sketcher.Constraint("Equal", 7, 9))
sketch5.addConstraint(Sketcher.Constraint("Horizontal", 3, 3, 5, 3))
sketch5.addConstraint(Sketcher.Constraint("Horizontal", 7, 3, 9, 3))
sketch5.addConstraint(Sketcher.Constraint("Equal", 2, 4))
sketch5.addConstraint(Sketcher.Constraint("Equal", 6, 8))
sketch5.addConstraint(Sketcher.Constraint("Radius", 1, Q("2 mm")))
sketch5.addConstraint(Sketcher.Constraint("DistanceX", 0, 2, 0, 1, Q("25 mm")))
sketch5.addConstraint(Sketcher.Constraint("DistanceX", -1, 1, 1, 3, Q("6 mm")))
sketch5.addConstraint(Sketcher.Constraint("DistanceX", -1, 1, 5, 3, Q("42 mm")))
sketch5.addConstraint(Sketcher.Constraint("DistanceX", -1, 1, 9, 3, Q("78 mm")))
sketch5.addConstraint(Sketcher.Constraint("DistanceY", -1, 1, 1, 3, Q("25.5 mm")))
pocket2 = body.newObject("PartDesign::Pocket", "Pocket001")
pocket2.Profile = sketch5
pocket2.Type = "ThroughAll"

doc.recompute()
